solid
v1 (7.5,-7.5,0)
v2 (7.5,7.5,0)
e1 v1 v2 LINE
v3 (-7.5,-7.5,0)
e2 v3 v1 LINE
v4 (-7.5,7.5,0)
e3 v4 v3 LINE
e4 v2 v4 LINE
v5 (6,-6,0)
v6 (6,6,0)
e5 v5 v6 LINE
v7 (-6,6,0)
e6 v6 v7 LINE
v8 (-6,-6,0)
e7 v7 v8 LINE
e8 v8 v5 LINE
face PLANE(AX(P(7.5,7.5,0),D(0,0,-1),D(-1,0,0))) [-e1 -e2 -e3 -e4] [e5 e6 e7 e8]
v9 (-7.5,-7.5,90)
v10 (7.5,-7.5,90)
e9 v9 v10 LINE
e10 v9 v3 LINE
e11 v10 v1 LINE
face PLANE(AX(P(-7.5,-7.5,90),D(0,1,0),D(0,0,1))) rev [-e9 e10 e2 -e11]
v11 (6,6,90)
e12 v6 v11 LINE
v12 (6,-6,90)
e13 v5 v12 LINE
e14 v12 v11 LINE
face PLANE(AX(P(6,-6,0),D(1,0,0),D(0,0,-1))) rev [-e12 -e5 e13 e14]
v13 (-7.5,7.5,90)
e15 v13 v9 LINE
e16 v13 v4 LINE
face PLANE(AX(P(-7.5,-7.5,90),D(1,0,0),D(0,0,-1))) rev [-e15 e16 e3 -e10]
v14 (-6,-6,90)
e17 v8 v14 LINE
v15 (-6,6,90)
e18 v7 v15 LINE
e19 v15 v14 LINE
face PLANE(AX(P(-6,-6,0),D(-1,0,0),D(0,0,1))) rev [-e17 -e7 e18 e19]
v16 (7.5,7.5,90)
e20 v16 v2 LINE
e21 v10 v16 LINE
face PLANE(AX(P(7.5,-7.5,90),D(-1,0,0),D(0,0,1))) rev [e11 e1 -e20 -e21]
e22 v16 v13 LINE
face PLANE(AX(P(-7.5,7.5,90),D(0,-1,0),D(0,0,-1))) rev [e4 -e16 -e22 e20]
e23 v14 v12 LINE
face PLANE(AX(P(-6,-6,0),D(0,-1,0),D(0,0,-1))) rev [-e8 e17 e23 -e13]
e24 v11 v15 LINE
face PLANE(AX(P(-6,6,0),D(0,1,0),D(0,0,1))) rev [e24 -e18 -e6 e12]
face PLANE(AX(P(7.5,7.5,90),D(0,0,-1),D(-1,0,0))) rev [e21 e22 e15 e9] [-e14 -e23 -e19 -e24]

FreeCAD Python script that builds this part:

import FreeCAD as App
import Part
import Sketcher

doc = App.newDocument("Part")
body = doc.addObject("PartDesign::Body", "Body")

# Sketch on XY plane
sketch1 = body.newObject("Sketcher::SketchObject", "Sketch")
sketch1.AttachmentSupport = (doc.getObject("XY_Plane"), [""])
sketch1.MapMode = "FlatFace"
sketch1.addGeometry(Part.LineSegment(App.Vector(-7.5, 7.5, 0), App.Vector(-7.5, -7.5, 0)), False)
sketch1.addGeometry(Part.LineSegment(App.Vector(-7.5, -7.5, 0), App.Vector(7.5, -7.5, 0)), False)
sketch1.addGeometry(Part.LineSegment(App.Vector(7.5, -7.5, 0), App.Vector(7.5, 7.5, 0)), False)
sketch1.addGeometry(Part.LineSegment(App.Vector(7.5, 7.5, 0), App.Vector(-7.5, 7.5, 0)), False)
sketch1.addConstraint(Sketcher.Constraint("Coincident", 0, 2, 1, 1))
sketch1.addConstraint(Sketcher.Constraint("Coincident", 1, 2, 2, 1))
sketch1.addConstraint(Sketcher.Constraint("Coincident", 2, 2, 3, 1))
sketch1.addConstraint(Sketcher.Constraint("Coincident", 3, 2, 0, 1))
sketch1.addConstraint(Sketcher.Constraint("Vertical", 0))
sketch1.addConstraint(Sketcher.Constraint("Horizontal", 1))
sketch1.addConstraint(Sketcher.Constraint("Vertical", 2))
sketch1.addConstraint(Sketcher.Constraint("Horizontal", 3))
sketch1.addConstraint(Sketcher.Constraint("Symmetric", 0, 2, 2, 2, -1, 1))
sketch1.addConstraint(Sketcher.Constraint("Equal", 3, 0))
sketch1.addConstraint(Sketcher.Constraint("DistanceX", 1, 1, 1, 2, 15.0))
pad1 = body.newObject("PartDesign::Pad", "Pad")
pad1.Profile = sketch1
pad1.Length = 90

# Sketch on XY plane
sketch2 = body.newObject("Sketcher::SketchObject", "Sketch001")
sketch2.AttachmentSupport = (doc.getObject("XY_Plane"), [""])
sketch2.MapMode = "FlatFace"
sketch2.AttachmentOffset = App.Placement(App.Vector(0, 0, 90), App.Rotation())
sketch2.addGeometry(Part.LineSegment(App.Vector(-6, 6, 0), App.Vector(-6, -6, 0)), False)
sketch2.addGeometry(Part.LineSegment(App.Vector(-6, -6, 0), App.Vector(6, -6, 0)), False)
sketch2.addGeometry(Part.LineSegment(App.Vector(6, -6, 0), App.Vector(6, 6, 0)), False)
sketch2.addGeometry(Part.LineSegment(App.Vector(6, 6, 0), App.Vector(-6, 6, 0)), False)
sketch2.addConstraint(Sketcher.Constraint("Coincident", 0, 2, 1, 1))
sketch2.addConstraint(Sketcher.Constraint("Coincident", 1, 2, 2, 1))
sketch2.addConstraint(Sketcher.Constraint("Coincident", 2, 2, 3, 1))
sketch2.addConstraint(Sketcher.Constraint("Coincident", 3, 2, 0, 1))
sketch2.addConstraint(Sketcher.Constraint("Vertical", 0))
sketch2.addConstraint(Sketcher.Constraint("Horizontal", 1))
sketch2.addConstraint(Sketcher.Constraint("Vertical", 2))
sketch2.addConstraint(Sketcher.Constraint("Horizontal", 3))
sketch2.addConstraint(Sketcher.Constraint("Symmetric", 0, 2, 2, 2, -1, 1))
sketch2.addConstraint(Sketcher.Constraint("Equal", 3, 0))
sketch2.addConstraint(Sketcher.Constraint("DistanceX", 1, 1, 1, 2, 12.0))
pocket1 = body.newObject("PartDesign::Pocket", "Pocket")
pocket1.Profile = sketch2
pocket1.Type = "ThroughAll"

doc.recompute()
